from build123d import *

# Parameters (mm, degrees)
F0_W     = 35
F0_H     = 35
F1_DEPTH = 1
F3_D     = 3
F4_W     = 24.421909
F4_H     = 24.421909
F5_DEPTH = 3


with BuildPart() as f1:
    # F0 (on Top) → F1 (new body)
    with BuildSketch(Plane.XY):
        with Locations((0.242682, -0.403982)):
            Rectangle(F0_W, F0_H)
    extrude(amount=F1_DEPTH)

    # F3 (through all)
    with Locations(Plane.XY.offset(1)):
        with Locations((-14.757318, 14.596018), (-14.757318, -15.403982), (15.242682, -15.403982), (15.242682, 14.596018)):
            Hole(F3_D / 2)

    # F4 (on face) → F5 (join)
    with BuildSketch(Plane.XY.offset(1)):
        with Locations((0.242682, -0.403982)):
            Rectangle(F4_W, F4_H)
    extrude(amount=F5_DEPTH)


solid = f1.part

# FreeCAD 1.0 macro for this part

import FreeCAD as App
import Part
import Sketcher
Q = App.Units.Quantity


def add_polygon(sketch, points):
    """Adds a closed chain of lines whose ends are joined by coincident constraints."""
    first, n = sketch.GeometryCount, len(points)
    for a, b in zip(points, points[1:] + points[:1]):
        sketch.addGeometry(Part.LineSegment(App.Vector(*a, 0), App.Vector(*b, 0)), False)
    for i in range(n):
        sketch.addConstraint(Sketcher.Constraint("Coincident", first + i, 2, first + (i + 1) % n, 1))

doc = App.newDocument("Part")
params = doc.addObject("Spreadsheet::Sheet", "Params")
for row, (alias, value) in enumerate([
    ("sketch1_width", "35 mm"),
    ("pad1_length", "1 mm"),
    ("sketch2_diameter", "3 mm"),
    ("hole_diameter", "3 mm"),
    ("pad2_length", "3 mm"),
], start=1):
    params.set(f"A{row}", alias)
    params.set(f"B{row}", "=" + value)
    params.setAlias(f"B{row}", alias)

body = doc.addObject("PartDesign::Body", "Body")

# Sketch on XY plane
sketch1 = body.newObject("Sketcher::SketchObject", "Sketch")
sketch1.AttachmentSupport = (doc.getObject("XY_Plane"), [""])
sketch1.MapMode = "FlatFace"
add_polygon(sketch1, [(-17, 17), (-17, -18), (18, -18), (18, 17)])  # lines 0-3
sketch1.addConstraint(Sketcher.Constraint("Vertical", 0))
sketch1.addConstraint(Sketcher.Constraint("Horizontal", 1))
sketch1.addConstraint(Sketcher.Constraint("Vertical", 2))
sketch1.addConstraint(Sketcher.Constraint("Horizontal", 3))
sketch1.addConstraint(Sketcher.Constraint("Equal", 3, 0))
sketch1.addConstraint(Sketcher.Constraint("DistanceX", 1, 1, 1, 2, Q("35 mm")))
sketch1.addConstraint(Sketcher.Constraint("DistanceX", 0, 2, -1, 1, Q("17.257318 mm")))
sketch1.addConstraint(Sketcher.Constraint("DistanceY", 0, 2, -1, 1, Q("17.903982 mm")))
sketch1.setExpression("Constraints[9]", "Params.sketch1_width")
pad1 = body.newObject("PartDesign::Pad", "Pad")
pad1.Profile = sketch1
pad1.setExpression("Length", "Params.pad1_length")

# Sketch on XY plane
sketch2 = body.newObject("Sketcher::SketchObject", "Sketch001")
sketch2.AttachmentSupport = (doc.getObject("XY_Plane"), [""])
sketch2.MapMode = "FlatFace"
sketch2.AttachmentOffset = App.Placement(App.Vector(0, 0, 1), App.Rotation())
sketch2.addGeometry(Part.Circle(App.Vector(-14.8, 14.6, 0), App.Vector(0, 0, 1), 1.5), False)
sketch2.addGeometry(Part.Circle(App.Vector(-14.8, -15.4, 0), App.Vector(0, 0, 1), 1.5), False)
sketch2.addGeometry(Part.Circle(App.Vector(15.2, -15.4, 0), App.Vector(0, 0, 1), 1.5), False)
sketch2.addGeometry(Part.Circle(App.Vector(15.2, 14.6, 0), App.Vector(0, 0, 1), 1.5), False)
sketch2.addConstraint(Sketcher.Constraint("Equal", 0, 1))
sketch2.addConstraint(Sketcher.Constraint("Equal", 1, 2))
sketch2.addConstraint(Sketcher.Constraint("Equal", 2, 3))
sketch2.addConstraint(Sketcher.Constraint("Horizontal", 1, 3, 2, 3))
sketch2.addConstraint(Sketcher.Constraint("Horizontal", 0, 3, 3, 3))
sketch2.addConstraint(Sketcher.Constraint("Vertical", 0, 3, 1, 3))
sketch2.addConstraint(Sketcher.Constraint("Vertical", 2, 3, 3, 3))
sketch2.addConstraint(Sketcher.Constraint("Diameter", 0, Q("3 mm")))
sketch2.addConstraint(Sketcher.Constraint("DistanceY", 1, 3, 0, 3, Q("30 mm")))
sketch2.addConstraint(Sketcher.Constraint("DistanceX", 1, 3, 2, 3, Q("30 mm")))
sketch2.addConstraint(Sketcher.Constraint("DistanceY", -1, 1, 0, 3, Q("14.596018 mm")))
sketch2.addConstraint(Sketcher.Constraint("DistanceX", 0, 3, -1, 1, Q("14.757318 mm")))
sketch2.setExpression("Constraints[7]", "Params.sketch2_diameter")
doc.recompute()
hole = body.newObject("PartDesign::Hole", "Hole")
hole.Profile = sketch2
hole.ThreadType = "None"
hole.setExpression("Diameter", "Params.hole_diameter")
hole.DepthType = "ThroughAll"

# Sketch on XY plane
sketch3 = body.newObject("Sketcher::SketchObject", "Sketch002")
sketch3.AttachmentSupport = (doc.getObject("XY_Plane"), [""])
sketch3.MapMode = "FlatFace"
sketch3.AttachmentOffset = App.Placement(App.Vector(0, 0, 1), App.Rotation())
add_polygon(sketch3, [(-12, 12), (-12, -13), (12, -13), (12, 12)])  # lines 0-3
sketch3.addConstraint(Sketcher.Constraint("Vertical", 0))
sketch3.addConstraint(Sketcher.Constraint("Horizontal", 1))
sketch3.addConstraint(Sketcher.Constraint("Vertical", 2))
sketch3.addConstraint(Sketcher.Constraint("Horizontal", 3))
sketch3.addConstraint(Sketcher.Constraint("Equal", 3, 0))
sketch3.addConstraint(Sketcher.Constraint("DistanceX", 1, 1, 1, 2, Q("24.421909 mm")))
sketch3.addConstraint(Sketcher.Constraint("DistanceX", 0, 2, -1, 1, Q("11.968272 mm")))
sketch3.addConstraint(Sketcher.Constraint("DistanceY", 0, 2, -1, 1, Q("12.614937 mm")))
pad2 = body.newObject("PartDesign::Pad", "Pad001")
pad2.Profile = sketch3
pad2.setExpression("Length", "Params.pad2_length")

doc.recompute()
